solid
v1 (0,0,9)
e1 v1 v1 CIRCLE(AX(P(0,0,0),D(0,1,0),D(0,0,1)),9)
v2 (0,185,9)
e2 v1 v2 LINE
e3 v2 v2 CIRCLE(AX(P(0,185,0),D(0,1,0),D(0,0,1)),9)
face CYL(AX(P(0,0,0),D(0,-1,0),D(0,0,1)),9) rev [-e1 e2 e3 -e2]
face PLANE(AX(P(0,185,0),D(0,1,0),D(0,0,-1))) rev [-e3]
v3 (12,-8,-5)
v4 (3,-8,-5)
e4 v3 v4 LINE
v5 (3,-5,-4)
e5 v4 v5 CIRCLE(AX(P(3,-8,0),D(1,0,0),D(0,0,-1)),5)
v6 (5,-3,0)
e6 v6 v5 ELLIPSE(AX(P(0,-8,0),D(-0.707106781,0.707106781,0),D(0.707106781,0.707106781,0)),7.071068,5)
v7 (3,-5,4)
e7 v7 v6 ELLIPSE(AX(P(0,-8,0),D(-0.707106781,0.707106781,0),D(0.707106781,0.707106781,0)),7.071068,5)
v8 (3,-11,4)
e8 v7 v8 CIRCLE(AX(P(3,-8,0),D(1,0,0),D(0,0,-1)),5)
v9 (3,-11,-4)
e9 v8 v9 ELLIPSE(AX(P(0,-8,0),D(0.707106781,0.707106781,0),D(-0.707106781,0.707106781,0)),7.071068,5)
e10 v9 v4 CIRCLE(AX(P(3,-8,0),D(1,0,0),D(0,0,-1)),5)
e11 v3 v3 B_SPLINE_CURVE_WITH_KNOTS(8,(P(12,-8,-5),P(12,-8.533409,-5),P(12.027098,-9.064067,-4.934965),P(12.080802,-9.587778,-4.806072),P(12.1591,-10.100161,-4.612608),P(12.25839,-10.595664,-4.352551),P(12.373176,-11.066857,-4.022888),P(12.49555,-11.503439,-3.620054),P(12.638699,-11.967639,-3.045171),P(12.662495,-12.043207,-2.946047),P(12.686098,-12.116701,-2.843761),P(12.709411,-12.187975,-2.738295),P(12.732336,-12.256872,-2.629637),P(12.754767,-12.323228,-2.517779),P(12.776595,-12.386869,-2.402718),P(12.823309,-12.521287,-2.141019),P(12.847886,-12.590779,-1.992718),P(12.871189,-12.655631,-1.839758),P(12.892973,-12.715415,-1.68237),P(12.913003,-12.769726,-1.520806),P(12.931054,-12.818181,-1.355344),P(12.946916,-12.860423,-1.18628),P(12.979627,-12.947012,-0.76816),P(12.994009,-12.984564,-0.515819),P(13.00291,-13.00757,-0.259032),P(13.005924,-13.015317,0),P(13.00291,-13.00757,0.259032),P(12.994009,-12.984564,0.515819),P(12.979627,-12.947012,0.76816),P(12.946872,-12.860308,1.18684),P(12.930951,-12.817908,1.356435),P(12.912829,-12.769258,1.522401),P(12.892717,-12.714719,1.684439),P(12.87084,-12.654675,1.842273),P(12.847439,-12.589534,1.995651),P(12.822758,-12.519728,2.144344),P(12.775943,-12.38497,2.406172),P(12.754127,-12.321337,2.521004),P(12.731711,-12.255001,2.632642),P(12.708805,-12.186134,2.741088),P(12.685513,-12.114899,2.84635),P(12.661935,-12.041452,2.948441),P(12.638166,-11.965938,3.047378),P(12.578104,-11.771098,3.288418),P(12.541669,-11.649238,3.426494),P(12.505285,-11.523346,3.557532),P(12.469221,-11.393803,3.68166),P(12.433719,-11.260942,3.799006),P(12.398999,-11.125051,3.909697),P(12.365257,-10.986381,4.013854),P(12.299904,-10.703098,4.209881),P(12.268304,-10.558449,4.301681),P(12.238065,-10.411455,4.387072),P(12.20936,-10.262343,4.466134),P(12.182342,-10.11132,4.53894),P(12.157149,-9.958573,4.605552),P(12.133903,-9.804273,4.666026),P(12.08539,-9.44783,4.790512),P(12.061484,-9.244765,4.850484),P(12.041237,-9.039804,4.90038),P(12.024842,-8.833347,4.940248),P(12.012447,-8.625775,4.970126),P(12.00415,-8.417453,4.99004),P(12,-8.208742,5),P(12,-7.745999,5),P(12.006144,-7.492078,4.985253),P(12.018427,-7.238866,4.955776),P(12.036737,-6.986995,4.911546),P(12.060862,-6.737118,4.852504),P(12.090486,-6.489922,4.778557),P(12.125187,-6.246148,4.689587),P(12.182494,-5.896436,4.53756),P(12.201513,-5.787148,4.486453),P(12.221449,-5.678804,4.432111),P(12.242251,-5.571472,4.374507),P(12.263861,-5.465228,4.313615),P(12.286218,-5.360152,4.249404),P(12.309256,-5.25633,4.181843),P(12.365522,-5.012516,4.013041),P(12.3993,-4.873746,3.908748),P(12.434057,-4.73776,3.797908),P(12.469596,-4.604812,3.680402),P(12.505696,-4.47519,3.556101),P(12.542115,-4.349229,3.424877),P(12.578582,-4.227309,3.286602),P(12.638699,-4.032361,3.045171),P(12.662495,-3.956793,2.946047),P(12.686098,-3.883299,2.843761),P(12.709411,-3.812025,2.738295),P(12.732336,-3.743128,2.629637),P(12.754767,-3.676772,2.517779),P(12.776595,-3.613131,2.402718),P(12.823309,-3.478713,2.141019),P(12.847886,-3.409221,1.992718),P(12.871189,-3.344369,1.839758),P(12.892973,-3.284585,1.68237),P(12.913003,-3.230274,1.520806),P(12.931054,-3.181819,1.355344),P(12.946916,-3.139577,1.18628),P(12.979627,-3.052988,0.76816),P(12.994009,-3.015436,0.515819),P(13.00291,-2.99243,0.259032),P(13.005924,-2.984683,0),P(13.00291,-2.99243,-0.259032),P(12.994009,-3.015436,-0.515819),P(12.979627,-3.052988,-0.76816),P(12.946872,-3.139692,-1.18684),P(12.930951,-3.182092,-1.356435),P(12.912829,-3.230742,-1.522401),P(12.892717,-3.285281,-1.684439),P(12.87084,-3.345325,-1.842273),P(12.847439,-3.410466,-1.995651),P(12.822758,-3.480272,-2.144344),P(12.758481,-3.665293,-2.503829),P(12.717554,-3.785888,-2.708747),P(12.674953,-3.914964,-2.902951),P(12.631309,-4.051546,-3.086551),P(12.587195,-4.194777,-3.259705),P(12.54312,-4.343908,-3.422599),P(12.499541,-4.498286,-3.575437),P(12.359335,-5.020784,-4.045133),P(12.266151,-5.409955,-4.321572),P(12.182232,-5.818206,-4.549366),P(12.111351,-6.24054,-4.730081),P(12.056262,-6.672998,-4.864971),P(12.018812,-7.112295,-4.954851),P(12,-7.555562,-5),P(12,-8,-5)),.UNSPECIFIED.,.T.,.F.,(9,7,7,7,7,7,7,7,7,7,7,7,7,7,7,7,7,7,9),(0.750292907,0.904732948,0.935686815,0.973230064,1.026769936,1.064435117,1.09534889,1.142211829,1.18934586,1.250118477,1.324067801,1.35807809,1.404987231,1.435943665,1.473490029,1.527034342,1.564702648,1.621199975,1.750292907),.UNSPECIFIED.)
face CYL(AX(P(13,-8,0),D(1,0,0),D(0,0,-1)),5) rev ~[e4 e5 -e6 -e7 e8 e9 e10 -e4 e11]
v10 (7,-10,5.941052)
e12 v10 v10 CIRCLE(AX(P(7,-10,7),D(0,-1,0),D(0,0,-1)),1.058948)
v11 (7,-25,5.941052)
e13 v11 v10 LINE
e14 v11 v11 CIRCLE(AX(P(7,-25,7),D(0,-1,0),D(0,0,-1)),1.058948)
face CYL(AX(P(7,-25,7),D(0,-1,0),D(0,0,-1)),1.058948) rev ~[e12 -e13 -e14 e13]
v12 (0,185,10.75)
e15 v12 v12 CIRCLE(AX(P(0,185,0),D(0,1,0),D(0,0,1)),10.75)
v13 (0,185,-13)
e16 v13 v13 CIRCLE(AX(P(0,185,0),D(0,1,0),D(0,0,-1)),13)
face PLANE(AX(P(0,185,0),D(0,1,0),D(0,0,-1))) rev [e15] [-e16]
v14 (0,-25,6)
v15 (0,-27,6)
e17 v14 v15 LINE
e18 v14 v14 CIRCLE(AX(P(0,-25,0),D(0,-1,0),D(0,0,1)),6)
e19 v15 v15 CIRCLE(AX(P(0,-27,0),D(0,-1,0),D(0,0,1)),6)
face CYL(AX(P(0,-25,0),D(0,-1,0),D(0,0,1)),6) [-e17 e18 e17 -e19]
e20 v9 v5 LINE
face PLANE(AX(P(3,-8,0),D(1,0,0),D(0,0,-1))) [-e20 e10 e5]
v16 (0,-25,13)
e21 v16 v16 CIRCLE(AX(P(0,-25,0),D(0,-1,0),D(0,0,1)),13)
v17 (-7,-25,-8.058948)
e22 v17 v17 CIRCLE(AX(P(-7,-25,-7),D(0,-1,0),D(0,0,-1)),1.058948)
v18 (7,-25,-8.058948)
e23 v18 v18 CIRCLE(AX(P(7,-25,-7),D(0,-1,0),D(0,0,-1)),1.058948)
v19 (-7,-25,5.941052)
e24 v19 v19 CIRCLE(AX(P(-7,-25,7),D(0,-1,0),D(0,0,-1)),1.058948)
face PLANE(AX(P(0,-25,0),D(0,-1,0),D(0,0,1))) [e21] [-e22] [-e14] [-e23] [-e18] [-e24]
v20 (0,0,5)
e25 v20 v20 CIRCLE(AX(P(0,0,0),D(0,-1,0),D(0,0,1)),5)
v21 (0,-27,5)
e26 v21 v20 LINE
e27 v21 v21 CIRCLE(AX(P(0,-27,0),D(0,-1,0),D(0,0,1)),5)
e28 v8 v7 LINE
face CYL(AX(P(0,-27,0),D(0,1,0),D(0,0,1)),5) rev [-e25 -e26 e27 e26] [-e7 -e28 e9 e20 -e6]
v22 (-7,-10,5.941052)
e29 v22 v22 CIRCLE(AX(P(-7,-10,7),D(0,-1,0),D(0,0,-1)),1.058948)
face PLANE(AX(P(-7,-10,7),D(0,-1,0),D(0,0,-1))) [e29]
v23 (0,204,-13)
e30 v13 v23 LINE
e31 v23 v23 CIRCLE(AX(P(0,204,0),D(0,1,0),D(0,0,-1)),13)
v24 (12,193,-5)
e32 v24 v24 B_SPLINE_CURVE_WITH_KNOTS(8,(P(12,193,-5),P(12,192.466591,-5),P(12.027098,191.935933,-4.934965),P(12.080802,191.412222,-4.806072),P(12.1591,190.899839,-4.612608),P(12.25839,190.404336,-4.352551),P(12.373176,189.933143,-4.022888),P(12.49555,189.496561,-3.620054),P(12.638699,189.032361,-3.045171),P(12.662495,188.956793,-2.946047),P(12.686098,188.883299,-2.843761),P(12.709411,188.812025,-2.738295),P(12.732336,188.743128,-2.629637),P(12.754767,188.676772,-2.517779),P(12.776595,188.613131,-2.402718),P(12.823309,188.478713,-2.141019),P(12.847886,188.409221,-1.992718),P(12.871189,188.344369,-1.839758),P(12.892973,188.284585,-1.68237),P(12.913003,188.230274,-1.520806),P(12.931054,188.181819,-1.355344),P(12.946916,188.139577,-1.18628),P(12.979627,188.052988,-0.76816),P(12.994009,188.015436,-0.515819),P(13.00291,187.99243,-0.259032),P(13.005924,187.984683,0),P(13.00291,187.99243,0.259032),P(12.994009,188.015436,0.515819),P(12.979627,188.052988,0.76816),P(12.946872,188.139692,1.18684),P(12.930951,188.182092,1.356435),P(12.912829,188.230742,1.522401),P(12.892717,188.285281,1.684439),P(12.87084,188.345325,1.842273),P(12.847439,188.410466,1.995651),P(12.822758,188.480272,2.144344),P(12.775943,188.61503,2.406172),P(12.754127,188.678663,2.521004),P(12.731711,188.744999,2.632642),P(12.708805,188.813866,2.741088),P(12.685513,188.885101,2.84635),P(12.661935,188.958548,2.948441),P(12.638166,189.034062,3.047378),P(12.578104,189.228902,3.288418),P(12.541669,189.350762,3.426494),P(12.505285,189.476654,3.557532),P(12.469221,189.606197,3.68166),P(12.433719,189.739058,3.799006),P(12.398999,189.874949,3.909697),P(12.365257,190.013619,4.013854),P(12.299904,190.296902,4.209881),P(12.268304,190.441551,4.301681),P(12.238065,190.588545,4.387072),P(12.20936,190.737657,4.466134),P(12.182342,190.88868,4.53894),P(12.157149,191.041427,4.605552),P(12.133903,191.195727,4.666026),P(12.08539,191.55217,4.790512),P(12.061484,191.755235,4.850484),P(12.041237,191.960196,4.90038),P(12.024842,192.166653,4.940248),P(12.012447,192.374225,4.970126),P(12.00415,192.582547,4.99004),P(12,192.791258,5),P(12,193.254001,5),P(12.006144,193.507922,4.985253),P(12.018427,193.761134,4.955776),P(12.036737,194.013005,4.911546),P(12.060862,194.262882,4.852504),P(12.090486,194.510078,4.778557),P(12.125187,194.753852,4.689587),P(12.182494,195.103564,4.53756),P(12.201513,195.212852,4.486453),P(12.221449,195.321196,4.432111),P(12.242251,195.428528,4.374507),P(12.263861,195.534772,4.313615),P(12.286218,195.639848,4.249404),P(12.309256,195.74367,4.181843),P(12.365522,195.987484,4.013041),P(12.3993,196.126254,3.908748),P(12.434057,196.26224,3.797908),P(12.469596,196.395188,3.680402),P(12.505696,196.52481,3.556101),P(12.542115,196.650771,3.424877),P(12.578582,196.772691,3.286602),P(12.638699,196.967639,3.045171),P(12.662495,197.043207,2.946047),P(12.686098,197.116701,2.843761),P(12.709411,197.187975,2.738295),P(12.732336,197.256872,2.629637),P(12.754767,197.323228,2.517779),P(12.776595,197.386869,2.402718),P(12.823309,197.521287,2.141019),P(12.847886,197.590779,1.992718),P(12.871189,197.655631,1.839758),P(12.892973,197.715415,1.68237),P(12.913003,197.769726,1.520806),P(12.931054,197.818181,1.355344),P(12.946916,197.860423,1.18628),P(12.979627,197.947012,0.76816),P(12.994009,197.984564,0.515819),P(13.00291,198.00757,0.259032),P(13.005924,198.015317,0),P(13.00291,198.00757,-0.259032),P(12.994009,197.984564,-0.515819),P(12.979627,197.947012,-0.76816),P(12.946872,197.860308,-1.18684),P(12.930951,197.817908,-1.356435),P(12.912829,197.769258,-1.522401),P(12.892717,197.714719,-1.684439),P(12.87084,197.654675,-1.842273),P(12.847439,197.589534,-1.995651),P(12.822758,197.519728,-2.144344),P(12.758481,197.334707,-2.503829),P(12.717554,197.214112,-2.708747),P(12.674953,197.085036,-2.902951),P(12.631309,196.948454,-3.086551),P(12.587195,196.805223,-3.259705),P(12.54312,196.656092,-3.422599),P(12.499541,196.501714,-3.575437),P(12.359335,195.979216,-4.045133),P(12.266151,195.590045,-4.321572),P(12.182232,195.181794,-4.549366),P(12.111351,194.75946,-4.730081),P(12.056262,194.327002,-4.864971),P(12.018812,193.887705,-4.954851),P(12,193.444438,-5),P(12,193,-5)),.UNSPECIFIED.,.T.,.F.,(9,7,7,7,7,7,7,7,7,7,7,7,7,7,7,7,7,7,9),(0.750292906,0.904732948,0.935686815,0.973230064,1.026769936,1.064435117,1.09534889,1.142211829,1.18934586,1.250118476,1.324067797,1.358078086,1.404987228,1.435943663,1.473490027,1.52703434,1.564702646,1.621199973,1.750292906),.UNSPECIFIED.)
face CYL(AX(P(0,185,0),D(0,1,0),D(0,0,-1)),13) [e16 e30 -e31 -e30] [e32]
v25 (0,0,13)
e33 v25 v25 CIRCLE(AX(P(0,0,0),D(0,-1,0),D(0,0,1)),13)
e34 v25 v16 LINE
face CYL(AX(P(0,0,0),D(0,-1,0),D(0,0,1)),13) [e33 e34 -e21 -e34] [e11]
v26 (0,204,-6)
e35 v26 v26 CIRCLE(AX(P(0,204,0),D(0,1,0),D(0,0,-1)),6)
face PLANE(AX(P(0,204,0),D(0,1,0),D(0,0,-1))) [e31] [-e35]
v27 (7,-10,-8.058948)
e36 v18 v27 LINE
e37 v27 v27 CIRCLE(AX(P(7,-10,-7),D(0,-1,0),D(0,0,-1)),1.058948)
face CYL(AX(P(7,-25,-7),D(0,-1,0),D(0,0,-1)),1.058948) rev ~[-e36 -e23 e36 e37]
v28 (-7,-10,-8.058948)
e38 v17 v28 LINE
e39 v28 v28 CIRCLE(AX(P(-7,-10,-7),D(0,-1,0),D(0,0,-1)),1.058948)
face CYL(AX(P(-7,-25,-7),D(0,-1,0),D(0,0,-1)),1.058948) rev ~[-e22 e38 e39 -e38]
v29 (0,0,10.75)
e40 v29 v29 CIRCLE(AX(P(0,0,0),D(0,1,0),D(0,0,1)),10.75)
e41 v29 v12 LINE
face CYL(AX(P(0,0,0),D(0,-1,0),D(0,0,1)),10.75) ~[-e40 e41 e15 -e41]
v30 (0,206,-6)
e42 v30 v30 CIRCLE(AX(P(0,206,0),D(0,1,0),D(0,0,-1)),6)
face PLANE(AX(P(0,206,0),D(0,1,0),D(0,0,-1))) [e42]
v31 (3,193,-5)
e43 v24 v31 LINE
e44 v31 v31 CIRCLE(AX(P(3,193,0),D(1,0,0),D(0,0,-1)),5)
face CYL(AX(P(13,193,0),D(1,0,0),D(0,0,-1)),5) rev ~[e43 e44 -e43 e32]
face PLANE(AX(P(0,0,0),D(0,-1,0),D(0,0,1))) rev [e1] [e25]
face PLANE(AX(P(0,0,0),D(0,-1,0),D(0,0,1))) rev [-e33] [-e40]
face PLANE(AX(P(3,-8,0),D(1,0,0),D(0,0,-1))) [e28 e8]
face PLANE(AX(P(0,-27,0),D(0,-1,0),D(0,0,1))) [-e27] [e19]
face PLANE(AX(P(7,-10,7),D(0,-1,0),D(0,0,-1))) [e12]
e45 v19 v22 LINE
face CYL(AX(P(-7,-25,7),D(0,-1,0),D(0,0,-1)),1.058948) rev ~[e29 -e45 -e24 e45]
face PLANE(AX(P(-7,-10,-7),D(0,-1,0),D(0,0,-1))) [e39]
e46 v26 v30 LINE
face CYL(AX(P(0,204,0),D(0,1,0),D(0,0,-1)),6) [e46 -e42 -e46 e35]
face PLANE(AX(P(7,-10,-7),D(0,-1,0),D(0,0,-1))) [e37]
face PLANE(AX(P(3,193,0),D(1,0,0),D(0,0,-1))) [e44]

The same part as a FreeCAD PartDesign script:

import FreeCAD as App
import Part
import Sketcher

V = App.Vector

doc = App.newDocument("Part")
body = doc.addObject("PartDesign::Body", "Body")

# Sketch on XZ plane
sketch1 = body.newObject("Sketcher::SketchObject", "Sketch")
sketch1.AttachmentSupport = (doc.getObject("XZ_Plane"), [""])
sketch1.MapMode = "FlatFace"
sketch1.addGeometry([
    Part.Circle(V(0, 0, 0), V(0, 0, 1), 11),
    Part.Circle(V(0, 0, 0), V(0, 0, 1), 9),
], False)
sketch1.addConstraint([
    Sketcher.Constraint("Coincident", 0, 3, -1, 1),
    Sketcher.Constraint("Coincident", 1, 3, -1, 1),
    Sketcher.Constraint("Diameter", 1, 18.0),
    Sketcher.Constraint("Diameter", 0, 21.5),
])
pad1 = body.newObject("PartDesign::Pad", "Pad")
pad1.Profile = sketch1
pad1.Length = 185
pad1.Reversed = True

# Sketch on YZ plane
sketch2 = body.newObject("Sketcher::SketchObject", "Sketch001")
sketch2.AttachmentSupport = (doc.getObject("YZ_Plane"), [""])
sketch2.MapMode = "FlatFace"
sketch2.addGeometry([
    Part.LineSegment(V(185, 13, 0), V(185, 0, 0)),  # 0
    Part.LineSegment(V(185, 0, 0), V(206, 0, 0)),  # 1
    Part.LineSegment(V(206, 0, 0), V(206, 6, 0)),  # 2
    Part.LineSegment(V(206, 6, 0), V(204, 6, 0)),  # 3
    Part.LineSegment(V(204, 6, 0), V(204, 13, 0)),  # 4
    Part.LineSegment(V(204, 13, 0), V(185, 13, 0)),  # 5
], False)
sketch2.addConstraint([
    Sketcher.Constraint("Coincident", 0, 2, 1, 1),
    Sketcher.Constraint("Coincident", 1, 2, 2, 1),
    Sketcher.Constraint("Coincident", 2, 2, 3, 1),
    Sketcher.Constraint("Coincident", 3, 2, 4, 1),
    Sketcher.Constraint("Coincident", 4, 2, 5, 1),
    Sketcher.Constraint("Coincident", 5, 2, 0, 1),
    Sketcher.Constraint("Vertical", 0),
    Sketcher.Constraint("Horizontal", 1),
    Sketcher.Constraint("Vertical", 2),
    Sketcher.Constraint("Horizontal", 3),
    Sketcher.Constraint("Vertical", 4),
    Sketcher.Constraint("Horizontal", 5),
    Sketcher.Constraint("PointOnObject", 0, 2, -1),
    Sketcher.Constraint("DistanceX", 1, 1, 1, 2, 21.0),
    Sketcher.Constraint("DistanceX", 3, 2, 3, 1, 2.0),
    Sketcher.Constraint("DistanceY", 0, 2, 0, 1, 13.0),
    Sketcher.Constraint("DistanceY", 2, 1, 2, 2, 6.0),
    Sketcher.Constraint("DistanceX", -1, 1, 0, 2, 185.0),
])
revolution = body.newObject("PartDesign::Revolution", "Revolution")
revolution.Profile = sketch2
revolution.ReferenceAxis = (sketch2, ["H_Axis"])
revolution.Angle = 360

# Sketch on YZ plane
sketch3 = body.newObject("Sketcher::SketchObject", "Sketch002")
sketch3.AttachmentSupport = (doc.getObject("YZ_Plane"), [""])
sketch3.MapMode = "FlatFace"
sketch3.addGeometry([
    Part.LineSegment(V(0, -13, 0), V(0, -5, 0)),  # 0
    Part.LineSegment(V(0, -5, 0), V(-27, -5, 0)),  # 1
    Part.LineSegment(V(-27, -5, 0), V(-27, -6, 0)),  # 2
    Part.LineSegment(V(-27, -6, 0), V(-25, -6, 0)),  # 3
    Part.LineSegment(V(-25, -6, 0), V(-25, -13, 0)),  # 4
    Part.LineSegment(V(-25, -13, 0), V(0, -13, 0)),  # 5
], False)
sketch3.addConstraint([
    Sketcher.Constraint("Coincident", 0, 2, 1, 1),
    Sketcher.Constraint("Coincident", 1, 2, 2, 1),
    Sketcher.Constraint("Coincident", 2, 2, 3, 1),
    Sketcher.Constraint("Coincident", 3, 2, 4, 1),
    Sketcher.Constraint("Coincident", 4, 2, 5, 1),
    Sketcher.Constraint("Coincident", 5, 2, 0, 1),
    Sketcher.Constraint("Vertical", 0),
    Sketcher.Constraint("Horizontal", 1),
    Sketcher.Constraint("Vertical", 2),
    Sketcher.Constraint("Horizontal", 3),
    Sketcher.Constraint("Vertical", 4),
    Sketcher.Constraint("Horizontal", 5),
    Sketcher.Constraint("PointOnObject", 0, 2, -2),
    Sketcher.Constraint("DistanceX", 1, 2, 1, 1, 27.0),
    Sketcher.Constraint("DistanceX", 3, 1, 3, 2, 2.0),
    Sketcher.Constraint("DistanceY", 0, 1, 0, 2, 8.0),
    Sketcher.Constraint("DistanceY", 2, 2, 2, 1, 1.0),
    Sketcher.Constraint("DistanceY", 0, 2, -1, 1, 5.0),
])
revolution2 = body.newObject("PartDesign::Revolution", "Revolution001")
revolution2.Profile = sketch3
revolution2.ReferenceAxis = (sketch3, ["H_Axis"])
revolution2.Angle = 360

# Sketch on YZ plane
sketch4 = body.newObject("Sketcher::SketchObject", "Sketch003")
sketch4.AttachmentSupport = (doc.getObject("YZ_Plane"), [""])
sketch4.MapMode = "FlatFace"
sketch4.AttachmentOffset = App.Placement(V(0, 0, 13), App.Rotation())
sketch4.addGeometry([
    Part.Circle(V(193, 0, 0), V(0, 0, 1), 5),
    Part.Circle(V(-8, 0, 0), V(0, 0, 1), 5),
], False)
sketch4.addConstraint([
    Sketcher.Constraint("Equal", 0, 1),
    Sketcher.Constraint("PointOnObject", 0, 3, -1),
    Sketcher.Constraint("PointOnObject", 1, 3, -1),
    Sketcher.Constraint("Diameter", 0, 10.0),
    Sketcher.Constraint("DistanceX", -1, 1, 0, 3, 193.0),
    Sketcher.Constraint("DistanceX", 1, 3, -1, 1, 8.0),
])
pocket1 = body.newObject("PartDesign::Pocket", "Pocket")
pocket1.Profile = sketch4
pocket1.Length = 10

# Sketch on XZ plane
sketch5 = body.newObject("Sketcher::SketchObject", "Sketch004")
sketch5.AttachmentSupport = (doc.getObject("XZ_Plane"), [""])
sketch5.MapMode = "FlatFace"
sketch5.AttachmentOffset = App.Placement(V(0, 0, 25), App.Rotation())
sketch5.addGeometry([
    Part.Circle(V(7, 7, 0), V(0, 0, 1), 1.1),
    Part.Circle(V(-7, 7, 0), V(0, 0, 1), 1.1),
    Part.Circle(V(-7, -7, 0), V(0, 0, 1), 1.1),
    Part.Circle(V(7, -7, 0), V(0, 0, 1), 1.1),
], False)
sketch5.addConstraint([
    Sketcher.Constraint("Equal", 0, 1),
    Sketcher.Constraint("Equal", 1, 2),
    Sketcher.Constraint("Equal", 2, 3),
    Sketcher.Constraint("Symmetric", 0, 3, 2, 3, -1, 1),
    Sketcher.Constraint("Symmetric", 1, 3, 3, 3, -1, 1),
    Sketcher.Constraint("Symmetric", 0, 3, 1, 3, -2),
    Sketcher.Constraint("DistanceX", -1, 1, 0, 3, 7.0),
    Sketcher.Constraint("DistanceY", -1, 1, 0, 3, 7.0),
    Sketcher.Constraint("Diameter", 0, 2.117897),
])
pocket2 = body.newObject("PartDesign::Pocket", "Pocket001")
pocket2.Profile = sketch5
pocket2.Length = 15

doc.recompute()
